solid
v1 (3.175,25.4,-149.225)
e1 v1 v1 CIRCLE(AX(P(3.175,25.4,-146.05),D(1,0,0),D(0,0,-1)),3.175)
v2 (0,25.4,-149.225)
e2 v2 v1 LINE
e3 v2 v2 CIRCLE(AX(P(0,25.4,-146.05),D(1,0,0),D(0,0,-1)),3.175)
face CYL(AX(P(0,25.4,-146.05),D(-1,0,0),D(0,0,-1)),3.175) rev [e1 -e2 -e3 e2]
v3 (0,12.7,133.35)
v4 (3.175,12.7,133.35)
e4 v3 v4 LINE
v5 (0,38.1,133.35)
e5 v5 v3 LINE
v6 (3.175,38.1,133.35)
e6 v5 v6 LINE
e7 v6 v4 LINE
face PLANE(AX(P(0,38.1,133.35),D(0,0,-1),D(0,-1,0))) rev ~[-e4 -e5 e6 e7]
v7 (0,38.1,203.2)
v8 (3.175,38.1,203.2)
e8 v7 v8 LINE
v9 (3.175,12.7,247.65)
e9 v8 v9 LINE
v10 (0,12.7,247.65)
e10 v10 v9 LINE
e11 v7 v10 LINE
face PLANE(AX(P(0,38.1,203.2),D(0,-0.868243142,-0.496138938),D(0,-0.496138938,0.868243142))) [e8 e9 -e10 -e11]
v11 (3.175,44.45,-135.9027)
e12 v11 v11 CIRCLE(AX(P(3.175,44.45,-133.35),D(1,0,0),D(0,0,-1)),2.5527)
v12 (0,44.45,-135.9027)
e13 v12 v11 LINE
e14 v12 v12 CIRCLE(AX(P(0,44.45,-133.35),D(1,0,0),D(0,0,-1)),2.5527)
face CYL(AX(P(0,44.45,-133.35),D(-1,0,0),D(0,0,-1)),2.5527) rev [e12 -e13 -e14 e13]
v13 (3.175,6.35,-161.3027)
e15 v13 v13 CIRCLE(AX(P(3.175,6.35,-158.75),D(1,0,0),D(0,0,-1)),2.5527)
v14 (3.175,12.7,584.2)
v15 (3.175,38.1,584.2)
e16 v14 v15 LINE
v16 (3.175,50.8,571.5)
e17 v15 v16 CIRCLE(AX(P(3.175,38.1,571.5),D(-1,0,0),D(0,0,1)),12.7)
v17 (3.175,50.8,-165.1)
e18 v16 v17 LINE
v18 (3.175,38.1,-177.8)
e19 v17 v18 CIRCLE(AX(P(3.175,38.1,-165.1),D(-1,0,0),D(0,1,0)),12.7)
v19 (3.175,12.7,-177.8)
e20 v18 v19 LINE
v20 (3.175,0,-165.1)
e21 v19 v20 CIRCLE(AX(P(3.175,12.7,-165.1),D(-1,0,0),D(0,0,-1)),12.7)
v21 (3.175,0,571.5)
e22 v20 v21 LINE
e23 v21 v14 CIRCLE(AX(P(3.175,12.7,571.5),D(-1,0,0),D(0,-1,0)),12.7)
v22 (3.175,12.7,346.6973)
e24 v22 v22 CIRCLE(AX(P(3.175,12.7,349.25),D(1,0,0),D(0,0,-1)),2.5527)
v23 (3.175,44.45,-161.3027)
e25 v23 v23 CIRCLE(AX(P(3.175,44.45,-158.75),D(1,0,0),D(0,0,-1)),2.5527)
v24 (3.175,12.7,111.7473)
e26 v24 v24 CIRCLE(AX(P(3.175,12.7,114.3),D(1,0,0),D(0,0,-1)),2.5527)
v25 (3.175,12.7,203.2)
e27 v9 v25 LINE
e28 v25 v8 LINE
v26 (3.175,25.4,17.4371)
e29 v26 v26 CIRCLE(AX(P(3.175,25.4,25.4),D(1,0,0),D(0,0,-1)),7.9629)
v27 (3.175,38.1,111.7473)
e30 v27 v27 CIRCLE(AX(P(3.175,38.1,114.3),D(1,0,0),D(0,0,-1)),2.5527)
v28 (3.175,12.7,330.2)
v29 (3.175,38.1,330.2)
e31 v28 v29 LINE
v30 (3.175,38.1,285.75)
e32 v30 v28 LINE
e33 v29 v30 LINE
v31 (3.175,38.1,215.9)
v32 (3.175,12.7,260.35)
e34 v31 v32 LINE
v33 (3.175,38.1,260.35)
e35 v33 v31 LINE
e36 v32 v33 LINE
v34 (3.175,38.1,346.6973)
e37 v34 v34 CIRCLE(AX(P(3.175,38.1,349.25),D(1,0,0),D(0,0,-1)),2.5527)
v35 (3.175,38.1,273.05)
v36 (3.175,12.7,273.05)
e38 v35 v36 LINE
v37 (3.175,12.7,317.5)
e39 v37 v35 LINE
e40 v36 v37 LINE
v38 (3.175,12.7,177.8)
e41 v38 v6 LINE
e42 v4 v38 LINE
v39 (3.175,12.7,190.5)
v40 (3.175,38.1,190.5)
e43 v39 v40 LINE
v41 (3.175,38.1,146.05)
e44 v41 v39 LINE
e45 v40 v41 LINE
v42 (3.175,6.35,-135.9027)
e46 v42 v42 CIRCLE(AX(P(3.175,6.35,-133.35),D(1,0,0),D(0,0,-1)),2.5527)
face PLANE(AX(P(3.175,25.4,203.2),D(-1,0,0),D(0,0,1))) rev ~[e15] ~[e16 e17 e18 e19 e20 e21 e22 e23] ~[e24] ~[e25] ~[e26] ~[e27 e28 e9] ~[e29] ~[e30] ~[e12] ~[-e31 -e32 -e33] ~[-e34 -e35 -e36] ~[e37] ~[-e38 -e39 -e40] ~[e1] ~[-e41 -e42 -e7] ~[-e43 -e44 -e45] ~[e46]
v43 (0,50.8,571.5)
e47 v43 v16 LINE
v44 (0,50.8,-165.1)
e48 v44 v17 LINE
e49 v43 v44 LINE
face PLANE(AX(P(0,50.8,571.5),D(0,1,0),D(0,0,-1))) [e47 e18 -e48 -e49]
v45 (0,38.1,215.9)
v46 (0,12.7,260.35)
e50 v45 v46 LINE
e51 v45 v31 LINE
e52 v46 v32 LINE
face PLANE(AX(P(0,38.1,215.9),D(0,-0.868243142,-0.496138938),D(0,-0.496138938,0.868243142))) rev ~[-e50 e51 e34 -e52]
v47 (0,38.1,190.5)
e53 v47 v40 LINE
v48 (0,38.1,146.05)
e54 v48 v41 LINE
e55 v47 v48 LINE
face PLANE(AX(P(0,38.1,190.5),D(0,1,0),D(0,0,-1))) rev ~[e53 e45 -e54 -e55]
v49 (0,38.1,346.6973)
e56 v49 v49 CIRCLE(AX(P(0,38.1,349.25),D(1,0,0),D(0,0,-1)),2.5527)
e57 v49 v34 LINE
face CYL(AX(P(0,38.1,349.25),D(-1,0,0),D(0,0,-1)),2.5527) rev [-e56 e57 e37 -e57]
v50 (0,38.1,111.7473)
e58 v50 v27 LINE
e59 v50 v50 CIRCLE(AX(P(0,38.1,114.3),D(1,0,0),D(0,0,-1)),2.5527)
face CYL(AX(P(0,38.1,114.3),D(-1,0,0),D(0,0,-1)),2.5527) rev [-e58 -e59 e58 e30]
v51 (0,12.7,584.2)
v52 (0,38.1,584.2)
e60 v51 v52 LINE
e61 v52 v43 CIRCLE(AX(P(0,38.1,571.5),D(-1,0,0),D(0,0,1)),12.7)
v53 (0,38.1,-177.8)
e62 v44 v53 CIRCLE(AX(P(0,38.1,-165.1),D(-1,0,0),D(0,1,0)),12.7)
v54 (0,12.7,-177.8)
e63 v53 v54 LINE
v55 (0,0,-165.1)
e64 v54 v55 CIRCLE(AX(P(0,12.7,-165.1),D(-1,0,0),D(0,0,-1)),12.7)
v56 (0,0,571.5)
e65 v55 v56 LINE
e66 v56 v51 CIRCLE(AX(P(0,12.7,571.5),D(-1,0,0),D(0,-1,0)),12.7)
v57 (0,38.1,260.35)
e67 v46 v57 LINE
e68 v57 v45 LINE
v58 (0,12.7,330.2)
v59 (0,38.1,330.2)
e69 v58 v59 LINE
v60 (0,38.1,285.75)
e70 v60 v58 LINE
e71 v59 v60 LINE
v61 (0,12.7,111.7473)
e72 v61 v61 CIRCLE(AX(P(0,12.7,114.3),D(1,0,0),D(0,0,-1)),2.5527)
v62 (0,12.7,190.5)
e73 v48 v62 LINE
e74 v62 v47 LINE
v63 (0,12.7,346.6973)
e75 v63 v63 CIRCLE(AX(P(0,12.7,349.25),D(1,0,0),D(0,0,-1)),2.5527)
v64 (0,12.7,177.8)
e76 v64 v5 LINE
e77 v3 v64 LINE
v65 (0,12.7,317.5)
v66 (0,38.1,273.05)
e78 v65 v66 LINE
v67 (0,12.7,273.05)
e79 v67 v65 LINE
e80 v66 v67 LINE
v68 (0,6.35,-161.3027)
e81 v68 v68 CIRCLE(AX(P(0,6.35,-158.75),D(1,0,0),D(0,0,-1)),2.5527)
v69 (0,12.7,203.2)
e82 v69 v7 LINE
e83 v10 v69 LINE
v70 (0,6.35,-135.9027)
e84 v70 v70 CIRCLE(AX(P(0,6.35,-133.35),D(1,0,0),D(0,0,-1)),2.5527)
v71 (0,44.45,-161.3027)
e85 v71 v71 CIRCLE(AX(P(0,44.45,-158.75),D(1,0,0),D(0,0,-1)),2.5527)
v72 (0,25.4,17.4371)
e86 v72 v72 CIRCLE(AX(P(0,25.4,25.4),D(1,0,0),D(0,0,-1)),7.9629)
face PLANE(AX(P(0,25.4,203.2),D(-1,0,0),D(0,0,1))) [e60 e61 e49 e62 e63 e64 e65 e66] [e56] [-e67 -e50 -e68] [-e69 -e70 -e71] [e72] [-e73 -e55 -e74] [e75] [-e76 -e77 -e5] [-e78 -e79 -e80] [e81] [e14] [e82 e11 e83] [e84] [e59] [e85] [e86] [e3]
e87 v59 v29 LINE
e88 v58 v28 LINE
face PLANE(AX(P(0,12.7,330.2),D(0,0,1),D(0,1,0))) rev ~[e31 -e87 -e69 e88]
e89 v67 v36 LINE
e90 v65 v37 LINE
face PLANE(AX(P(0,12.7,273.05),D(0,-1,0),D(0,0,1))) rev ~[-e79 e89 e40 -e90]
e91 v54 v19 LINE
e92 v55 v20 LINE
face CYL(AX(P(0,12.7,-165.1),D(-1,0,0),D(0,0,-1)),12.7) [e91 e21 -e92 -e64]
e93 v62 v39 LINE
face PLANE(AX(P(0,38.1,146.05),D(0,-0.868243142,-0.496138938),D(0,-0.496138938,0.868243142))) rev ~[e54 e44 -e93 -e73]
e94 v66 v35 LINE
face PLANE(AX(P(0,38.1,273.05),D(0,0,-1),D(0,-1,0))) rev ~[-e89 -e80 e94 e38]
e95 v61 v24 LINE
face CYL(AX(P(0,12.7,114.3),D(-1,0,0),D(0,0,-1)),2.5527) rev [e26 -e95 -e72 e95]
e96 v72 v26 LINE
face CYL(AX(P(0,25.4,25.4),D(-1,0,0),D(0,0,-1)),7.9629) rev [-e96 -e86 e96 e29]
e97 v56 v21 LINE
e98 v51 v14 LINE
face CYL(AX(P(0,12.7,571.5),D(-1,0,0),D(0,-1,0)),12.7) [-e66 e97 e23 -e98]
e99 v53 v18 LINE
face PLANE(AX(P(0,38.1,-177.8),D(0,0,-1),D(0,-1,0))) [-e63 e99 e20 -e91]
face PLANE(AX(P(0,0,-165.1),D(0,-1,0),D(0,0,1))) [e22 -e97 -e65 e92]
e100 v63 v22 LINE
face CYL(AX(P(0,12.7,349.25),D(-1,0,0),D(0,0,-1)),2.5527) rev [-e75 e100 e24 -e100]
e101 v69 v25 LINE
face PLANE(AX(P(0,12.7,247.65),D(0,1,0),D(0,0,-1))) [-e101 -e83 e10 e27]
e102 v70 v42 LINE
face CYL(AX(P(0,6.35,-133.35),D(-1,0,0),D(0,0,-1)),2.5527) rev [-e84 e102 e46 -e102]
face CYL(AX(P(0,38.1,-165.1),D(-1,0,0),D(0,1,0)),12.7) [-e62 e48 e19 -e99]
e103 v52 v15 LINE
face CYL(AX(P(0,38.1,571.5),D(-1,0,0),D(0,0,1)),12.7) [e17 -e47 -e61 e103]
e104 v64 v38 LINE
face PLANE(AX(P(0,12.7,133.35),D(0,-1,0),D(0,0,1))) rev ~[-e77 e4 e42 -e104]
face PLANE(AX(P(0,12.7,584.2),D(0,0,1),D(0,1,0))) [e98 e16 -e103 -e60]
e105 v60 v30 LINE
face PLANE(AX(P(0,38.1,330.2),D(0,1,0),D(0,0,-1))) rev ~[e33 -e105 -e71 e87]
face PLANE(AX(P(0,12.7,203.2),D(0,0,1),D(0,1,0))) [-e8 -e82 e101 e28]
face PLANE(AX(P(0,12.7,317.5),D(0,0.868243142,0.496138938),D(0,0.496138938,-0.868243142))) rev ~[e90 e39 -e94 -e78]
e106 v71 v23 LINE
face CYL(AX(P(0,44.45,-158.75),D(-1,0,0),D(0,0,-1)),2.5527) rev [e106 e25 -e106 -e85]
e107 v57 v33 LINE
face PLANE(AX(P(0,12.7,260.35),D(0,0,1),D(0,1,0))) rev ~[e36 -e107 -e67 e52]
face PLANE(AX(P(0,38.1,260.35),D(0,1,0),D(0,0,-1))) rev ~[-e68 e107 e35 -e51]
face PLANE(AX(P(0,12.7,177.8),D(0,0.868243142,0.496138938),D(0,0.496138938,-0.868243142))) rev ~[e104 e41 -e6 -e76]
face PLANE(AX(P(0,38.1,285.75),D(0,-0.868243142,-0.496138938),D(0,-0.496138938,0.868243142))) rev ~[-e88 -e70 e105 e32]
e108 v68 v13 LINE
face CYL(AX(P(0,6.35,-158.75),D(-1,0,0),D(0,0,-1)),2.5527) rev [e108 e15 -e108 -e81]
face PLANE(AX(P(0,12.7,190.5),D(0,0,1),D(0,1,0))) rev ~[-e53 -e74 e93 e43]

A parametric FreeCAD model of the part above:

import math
import FreeCAD as App
import Part
import Sketcher

V = App.Vector
Q = App.Units.Quantity

doc = App.newDocument("Part")
body = doc.addObject("PartDesign::Body", "Body")

sketch1 = doc.addObject("Sketcher::SketchObject", "Sketch")
body.addObject(sketch1)
sketch1.AttachmentSupport = (doc.YZ_Plane, [""])
sketch1.MapMode = "FlatFace"
sketch1.addGeometry([
    Part.LineSegment(V(12.7, -177.8, 0), V(38.1, -177.8, 0)),
    Part.ArcOfCircle(Part.Circle(V(38.1, -165.1, 0), V(0, 0, 1), 12.7), math.radians(-90), math.radians(0)),
    Part.LineSegment(V(50.8, -165.1, 0), V(50.8, 571.5, 0)),
    Part.ArcOfCircle(Part.Circle(V(38.1, 571.5, 0), V(0, 0, 1), 12.7), math.radians(0), math.radians(90)),
    Part.LineSegment(V(38.1, 584.2, 0), V(12.7, 584.2, 0)),
    Part.ArcOfCircle(Part.Circle(V(12.7, 571.5, 0), V(0, 0, 1), 12.7), math.radians(90), math.radians(180)),
    Part.LineSegment(V(0, 571.5, 0), V(0, -165.1, 0)),
    Part.ArcOfCircle(Part.Circle(V(12.7, -165.1, 0), V(0, 0, 1), 12.7), math.radians(180), math.radians(270)),
    Part.Circle(V(6.35, -158.75, 0), V(0, 0, 1), 2.5527),
    Part.Circle(V(6.35, -133.35, 0), V(0, 0, 1), 2.5527),
    Part.Circle(V(25.4, -146.05, 0), V(0, 0, 1), 3.175),
    Part.Circle(V(25.4, 25.4, 0), V(0, 0, 1), 7.9629),
    Part.Circle(V(12.7, 114.3, 0), V(0, 0, 1), 2.5527),
    Part.Circle(V(12.7, 349.25, 0), V(0, 0, 1), 2.5527),
    Part.Circle(V(44.45, -158.75, 0), V(0, 0, 1), 2.5527),
    Part.Circle(V(44.45, -133.35, 0), V(0, 0, 1), 2.5527),
    Part.LineSegment(V(38.1, 133.35, 0), V(12.7, 133.35, 0)),
    Part.LineSegment(V(12.7, 133.35, 0), V(12.7, 177.8, 0)),
    Part.LineSegment(V(12.7, 177.8, 0), V(38.1, 133.35, 0)),
    Part.LineSegment(V(38.1, 190.5, 0), V(38.1, 146.05, 0)),
    Part.LineSegment(V(38.1, 146.05, 0), V(12.7, 190.5, 0)),
    Part.LineSegment(V(12.7, 190.5, 0), V(38.1, 190.5, 0)),
    Part.LineSegment(V(12.7, 203.2, 0), V(12.7, 247.65, 0)),
    Part.LineSegment(V(12.7, 247.65, 0), V(38.1, 203.2, 0)),
    Part.LineSegment(V(38.1, 203.2, 0), V(12.7, 203.2, 0)),
    Part.LineSegment(V(38.1, 215.9, 0), V(12.7, 260.35, 0)),
    Part.LineSegment(V(12.7, 260.35, 0), V(38.1, 260.35, 0)),
    Part.LineSegment(V(38.1, 260.35, 0), V(38.1, 215.9, 0)),
    Part.LineSegment(V(38.1, 273.05, 0), V(12.7, 273.05, 0)),
    Part.LineSegment(V(12.7, 273.05, 0), V(12.7, 317.5, 0)),
    Part.LineSegment(V(12.7, 317.5, 0), V(38.1, 273.05, 0)),
    Part.LineSegment(V(12.7, 330.2, 0), V(38.1, 330.2, 0)),
    Part.LineSegment(V(38.1, 330.2, 0), V(38.1, 285.75, 0)),
    Part.LineSegment(V(38.1, 285.75, 0), V(12.7, 330.2, 0)),
    Part.Circle(V(38.1, 114.3, 0), V(0, 0, 1), 2.5527),
    Part.Circle(V(38.1, 349.25, 0), V(0, 0, 1), 2.5527),
], False)
sketch1.addConstraint([
    Sketcher.Constraint("Tangent", 0, 2, 1, 1),
    Sketcher.Constraint("Tangent", 1, 2, 2, 1),
    Sketcher.Constraint("Tangent", 2, 2, 3, 1),
    Sketcher.Constraint("Tangent", 3, 2, 4, 1),
    Sketcher.Constraint("Tangent", 4, 2, 5, 1),
    Sketcher.Constraint("Tangent", 5, 2, 6, 1),
    Sketcher.Constraint("Tangent", 6, 2, 7, 1),
    Sketcher.Constraint("Tangent", 7, 2, 0, 1),
    Sketcher.Constraint("Coincident", 16, 2, 17, 1),
    Sketcher.Constraint("Coincident", 17, 2, 18, 1),
    Sketcher.Constraint("Coincident", 18, 2, 16, 1),
    Sketcher.Constraint("Coincident", 19, 2, 20, 1),
    Sketcher.Constraint("Coincident", 20, 2, 21, 1),
    Sketcher.Constraint("Coincident", 21, 2, 19, 1),
    Sketcher.Constraint("Coincident", 22, 2, 23, 1),
    Sketcher.Constraint("Coincident", 23, 2, 24, 1),
    Sketcher.Constraint("Coincident", 24, 2, 22, 1),
    Sketcher.Constraint("Coincident", 25, 2, 26, 1),
    Sketcher.Constraint("Coincident", 26, 2, 27, 1),
    Sketcher.Constraint("Coincident", 27, 2, 25, 1),
    Sketcher.Constraint("Coincident", 28, 2, 29, 1),
    Sketcher.Constraint("Coincident", 29, 2, 30, 1),
    Sketcher.Constraint("Coincident", 30, 2, 28, 1),
    Sketcher.Constraint("Coincident", 31, 2, 32, 1),
    Sketcher.Constraint("Coincident", 32, 2, 33, 1),
    Sketcher.Constraint("Coincident", 33, 2, 31, 1),
    Sketcher.Constraint("Horizontal", 0),
    Sketcher.Constraint("Vertical", 2),
    Sketcher.Constraint("Horizontal", 4),
    Sketcher.Constraint("Vertical", 6),
    Sketcher.Constraint("Horizontal", 16),
    Sketcher.Constraint("Vertical", 17),
    Sketcher.Constraint("Vertical", 19),
    Sketcher.Constraint("Horizontal", 21),
    Sketcher.Constraint("Vertical", 22),
    Sketcher.Constraint("Horizontal", 24),
    Sketcher.Constraint("Horizontal", 26),
    Sketcher.Constraint("Vertical", 27),
    Sketcher.Constraint("Horizontal", 28),
    Sketcher.Constraint("Vertical", 29),
    Sketcher.Constraint("Horizontal", 31),
    Sketcher.Constraint("Vertical", 32),
    Sketcher.Constraint("Equal", 1, 3),
    Sketcher.Constraint("Equal", 3, 5),
    Sketcher.Constraint("Equal", 5, 7),
    Sketcher.Constraint("Equal", 8, 9),
    Sketcher.Constraint("Equal", 9, 12),
    Sketcher.Constraint("Equal", 12, 13),
    Sketcher.Constraint("Equal", 13, 14),
    Sketcher.Constraint("Equal", 14, 15),
    Sketcher.Constraint("Equal", 15, 34),
    Sketcher.Constraint("Equal", 34, 35),
    Sketcher.Constraint("Symmetric", 7, 2, 17, 2, -1),
    Sketcher.Constraint("PointOnObject", 5, 2, -2),
    Sketcher.Constraint("Parallel", 18, 20),
    Sketcher.Constraint("Parallel", 20, 23),
    Sketcher.Constraint("Parallel", 23, 25),
    Sketcher.Constraint("Parallel", 25, 30),
    Sketcher.Constraint("Parallel", 30, 33),
    Sketcher.Constraint("Horizontal", 8, 3, 14, 3),
    Sketcher.Constraint("Horizontal", 9, 3, 15, 3),
    Sketcher.Constraint("Horizontal", 12, 3, 34, 3),
    Sketcher.Constraint("Horizontal", 13, 3, 35, 3),
    Sketcher.Constraint("Vertical", 8, 3, 9, 3),
    Sketcher.Constraint("Vertical", 10, 3, 11, 3),
    Sketcher.Constraint("Vertical", 7, 3, 12, 3),
    Sketcher.Constraint("Vertical", 12, 3, 13, 3),
    Sketcher.Constraint("Vertical", 14, 3, 15, 3),
    Sketcher.Constraint("Vertical", 3, 3, 34, 3),
    Sketcher.Constraint("Vertical", 34, 3, 35, 3),
    Sketcher.Constraint("Vertical", 3, 2, 18, 2),
    Sketcher.Constraint("Vertical", 18, 2, 19, 2),
    Sketcher.Constraint("Vertical", 17, 2, 20, 2),
    Sketcher.Constraint("Vertical", 20, 2, 22, 2),
    Sketcher.Constraint("Vertical", 21, 2, 23, 2),
    Sketcher.Constraint("Vertical", 24, 2, 25, 2),
    Sketcher.Constraint("Vertical", 23, 2, 26, 2),
    Sketcher.Constraint("Vertical", 25, 2, 28, 2),
    Sketcher.Constraint("Vertical", 27, 2, 30, 2),
    Sketcher.Constraint("Vertical", 30, 2, 31, 2),
    Sketcher.Constraint("Vertical", 29, 2, 33, 2),
    Sketcher.Constraint("Radius", 1, Q("0.5 in")),
    Sketcher.Constraint("Diameter", 10, Q("0.25 in")),
    Sketcher.Constraint("DistanceX", 0, 1, 0, 2, Q("1 in")),
    Sketcher.Constraint("DistanceY", 2, 1, 2, 2, Q("29 in")),
    Sketcher.Constraint("Diameter", 8, Q("0.201 in")),
    Sketcher.Constraint("Diameter", 11, Q("0.627 in")),
    Sketcher.Constraint("DistanceX", -1, 1, 10, 3, Q("1 in")),
    Sketcher.Constraint("DistanceY", -1, 1, 11, 3, Q("1 in")),
    Sketcher.Constraint("DistanceY", 0, 2, -1, 1, Q("7 in")),
    Sketcher.Constraint("DistanceY", -1, 1, 23, 2, Q("8 in")),
    Sketcher.Constraint("DistanceY", -1, 1, 31, 2, Q("13 in")),
    Sketcher.Constraint("DistanceY", 8, 3, 9, 3, Q("1 in")),
    Sketcher.Constraint("DistanceY", 7, 3, 12, 3, Q("11 in")),
    Sketcher.Constraint("DistanceY", 9, 3, 13, 3, Q("19 in")),
    Sketcher.Constraint("DistanceY", 12, 3, 20, 2, Q("3 in")),
    Sketcher.Constraint("DistanceY", 22, 2, 13, 3, Q("4 in")),
    Sketcher.Constraint("DistanceY", 21, 2, 27, 2, Q("1 in")),
    Sketcher.Constraint("DistanceY", 22, 2, 28, 2, Q("1 in")),
    Sketcher.Constraint("DistanceY", 26, 2, 32, 2, Q("1 in")),
    Sketcher.Constraint("DistanceY", 8, 3, 10, 3, Q("0.5 in")),
    Sketcher.Constraint("DistanceX", 8, 3, 14, 3, Q("1.5 in")),
    Sketcher.Constraint("DistanceX", -1, 1, 8, 3, Q("0.25 in")),
])
pad1 = doc.addObject("PartDesign::Pad", "Pad")
body.addObject(pad1)
pad1.Profile = sketch1
pad1.Length = Q("0.125 in")

doc.recompute()
